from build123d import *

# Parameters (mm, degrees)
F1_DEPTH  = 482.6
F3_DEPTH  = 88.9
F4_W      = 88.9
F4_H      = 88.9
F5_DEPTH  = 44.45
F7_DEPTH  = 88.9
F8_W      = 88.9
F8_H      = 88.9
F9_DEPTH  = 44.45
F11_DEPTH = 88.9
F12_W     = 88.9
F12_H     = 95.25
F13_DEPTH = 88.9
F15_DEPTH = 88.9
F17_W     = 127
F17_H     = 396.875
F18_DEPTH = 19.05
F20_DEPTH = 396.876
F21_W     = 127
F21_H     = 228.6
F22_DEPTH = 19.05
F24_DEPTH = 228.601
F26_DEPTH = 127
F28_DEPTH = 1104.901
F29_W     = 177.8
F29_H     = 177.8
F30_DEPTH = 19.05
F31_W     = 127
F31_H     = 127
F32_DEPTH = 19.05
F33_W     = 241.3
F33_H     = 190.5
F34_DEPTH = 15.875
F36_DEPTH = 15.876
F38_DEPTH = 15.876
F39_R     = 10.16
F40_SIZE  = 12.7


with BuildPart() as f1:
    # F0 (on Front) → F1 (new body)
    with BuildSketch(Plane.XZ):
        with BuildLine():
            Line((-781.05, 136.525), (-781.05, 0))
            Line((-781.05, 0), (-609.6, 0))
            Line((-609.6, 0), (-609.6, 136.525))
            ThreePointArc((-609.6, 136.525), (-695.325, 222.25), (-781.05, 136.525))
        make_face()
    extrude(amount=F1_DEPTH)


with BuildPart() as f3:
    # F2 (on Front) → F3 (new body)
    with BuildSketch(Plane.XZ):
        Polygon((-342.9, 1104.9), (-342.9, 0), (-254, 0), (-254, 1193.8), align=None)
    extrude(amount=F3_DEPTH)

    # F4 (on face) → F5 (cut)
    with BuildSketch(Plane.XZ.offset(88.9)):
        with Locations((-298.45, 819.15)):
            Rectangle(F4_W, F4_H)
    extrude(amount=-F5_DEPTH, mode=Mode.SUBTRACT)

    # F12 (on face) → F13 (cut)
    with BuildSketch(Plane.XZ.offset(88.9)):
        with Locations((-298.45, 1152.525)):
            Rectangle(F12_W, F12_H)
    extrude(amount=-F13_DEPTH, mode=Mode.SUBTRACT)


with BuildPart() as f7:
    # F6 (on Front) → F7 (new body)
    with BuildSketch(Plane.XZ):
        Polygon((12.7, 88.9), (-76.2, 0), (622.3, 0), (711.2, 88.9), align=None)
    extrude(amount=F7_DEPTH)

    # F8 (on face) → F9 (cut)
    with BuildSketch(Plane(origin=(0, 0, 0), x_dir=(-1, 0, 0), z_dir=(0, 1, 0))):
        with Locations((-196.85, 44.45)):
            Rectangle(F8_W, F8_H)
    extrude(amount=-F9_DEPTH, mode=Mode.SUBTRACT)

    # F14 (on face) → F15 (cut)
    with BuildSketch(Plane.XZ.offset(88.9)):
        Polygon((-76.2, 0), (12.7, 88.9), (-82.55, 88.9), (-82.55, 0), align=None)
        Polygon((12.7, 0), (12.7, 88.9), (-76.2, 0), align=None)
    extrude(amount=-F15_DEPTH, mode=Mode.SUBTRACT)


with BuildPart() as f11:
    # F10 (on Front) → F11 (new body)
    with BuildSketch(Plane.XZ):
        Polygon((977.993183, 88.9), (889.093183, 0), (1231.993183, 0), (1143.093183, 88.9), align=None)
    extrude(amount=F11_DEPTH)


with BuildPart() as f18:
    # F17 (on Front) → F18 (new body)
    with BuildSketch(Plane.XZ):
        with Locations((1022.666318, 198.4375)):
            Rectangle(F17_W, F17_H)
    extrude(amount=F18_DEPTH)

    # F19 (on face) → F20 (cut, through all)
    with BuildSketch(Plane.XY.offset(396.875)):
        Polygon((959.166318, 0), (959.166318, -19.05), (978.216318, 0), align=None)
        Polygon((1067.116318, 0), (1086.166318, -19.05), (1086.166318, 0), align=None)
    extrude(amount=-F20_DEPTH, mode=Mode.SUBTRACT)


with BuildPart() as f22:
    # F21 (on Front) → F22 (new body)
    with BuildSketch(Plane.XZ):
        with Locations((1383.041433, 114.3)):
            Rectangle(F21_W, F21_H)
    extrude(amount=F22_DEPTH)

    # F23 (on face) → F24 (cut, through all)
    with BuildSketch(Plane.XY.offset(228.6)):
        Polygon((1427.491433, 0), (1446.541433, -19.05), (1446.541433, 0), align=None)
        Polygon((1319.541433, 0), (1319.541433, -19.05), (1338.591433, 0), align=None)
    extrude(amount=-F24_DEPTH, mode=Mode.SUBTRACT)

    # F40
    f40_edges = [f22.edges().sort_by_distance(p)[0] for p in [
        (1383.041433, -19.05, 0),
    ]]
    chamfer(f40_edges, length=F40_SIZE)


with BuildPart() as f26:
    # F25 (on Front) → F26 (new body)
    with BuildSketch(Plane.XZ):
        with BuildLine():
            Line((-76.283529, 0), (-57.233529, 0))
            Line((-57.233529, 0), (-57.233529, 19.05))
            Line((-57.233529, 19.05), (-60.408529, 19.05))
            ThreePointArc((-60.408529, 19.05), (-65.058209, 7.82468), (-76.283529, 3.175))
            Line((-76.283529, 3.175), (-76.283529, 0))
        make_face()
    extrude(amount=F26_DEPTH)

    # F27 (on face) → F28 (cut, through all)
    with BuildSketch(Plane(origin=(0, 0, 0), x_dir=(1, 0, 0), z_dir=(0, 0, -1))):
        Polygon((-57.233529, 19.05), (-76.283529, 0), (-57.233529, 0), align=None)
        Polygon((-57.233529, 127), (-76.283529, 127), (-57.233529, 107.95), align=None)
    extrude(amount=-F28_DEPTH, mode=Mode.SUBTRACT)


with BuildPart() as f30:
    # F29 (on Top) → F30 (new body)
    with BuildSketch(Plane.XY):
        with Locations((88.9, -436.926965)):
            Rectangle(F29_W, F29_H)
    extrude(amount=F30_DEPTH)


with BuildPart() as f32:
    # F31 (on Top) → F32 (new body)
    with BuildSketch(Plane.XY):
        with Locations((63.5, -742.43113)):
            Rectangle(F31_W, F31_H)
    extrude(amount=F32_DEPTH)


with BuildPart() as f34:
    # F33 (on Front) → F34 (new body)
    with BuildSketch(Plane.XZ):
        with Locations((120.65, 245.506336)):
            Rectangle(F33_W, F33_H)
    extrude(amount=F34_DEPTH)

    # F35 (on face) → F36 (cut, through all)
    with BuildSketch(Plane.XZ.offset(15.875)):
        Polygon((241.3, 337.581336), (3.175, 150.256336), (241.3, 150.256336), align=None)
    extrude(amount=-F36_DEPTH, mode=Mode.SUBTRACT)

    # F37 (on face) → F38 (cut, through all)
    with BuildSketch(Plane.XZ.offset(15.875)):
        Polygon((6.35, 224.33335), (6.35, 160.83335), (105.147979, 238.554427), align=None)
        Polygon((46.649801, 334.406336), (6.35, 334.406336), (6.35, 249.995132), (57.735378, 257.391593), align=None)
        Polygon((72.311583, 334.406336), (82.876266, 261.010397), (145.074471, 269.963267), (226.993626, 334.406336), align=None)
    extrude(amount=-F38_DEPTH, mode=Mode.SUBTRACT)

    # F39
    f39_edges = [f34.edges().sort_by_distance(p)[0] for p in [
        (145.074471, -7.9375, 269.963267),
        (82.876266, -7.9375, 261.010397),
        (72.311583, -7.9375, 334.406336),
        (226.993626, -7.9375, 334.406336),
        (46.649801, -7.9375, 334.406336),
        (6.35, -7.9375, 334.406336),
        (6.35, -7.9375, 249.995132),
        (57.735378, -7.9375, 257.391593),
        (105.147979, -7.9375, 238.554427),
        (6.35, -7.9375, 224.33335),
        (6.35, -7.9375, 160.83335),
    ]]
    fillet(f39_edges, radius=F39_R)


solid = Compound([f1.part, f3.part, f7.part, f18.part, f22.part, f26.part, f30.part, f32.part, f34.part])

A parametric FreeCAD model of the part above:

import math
import FreeCAD as App
import Part
import Sketcher

V = App.Vector
Q = App.Units.Quantity


def edges_at(feature, points):
    """Names of the edges that pass closest to the given points."""
    edges = feature.Shape.Edges
    near = lambda p: min(range(len(edges)), key=lambda i: edges[i].distToShape(Part.Vertex(*p))[0])
    return sorted({f"Edge{near(p) + 1}" for p in points})

doc = App.newDocument("Part")
body = doc.addObject("PartDesign::Body", "Body")

# Sketch on XZ plane
sketch1 = doc.addObject("Sketcher::SketchObject", "Sketch")
body.addObject(sketch1)
sketch1.AttachmentSupport = (doc.XZ_Plane, [""])
sketch1.MapMode = "FlatFace"
sketch1.addGeometry([
    Part.LineSegment(V(-781.05, 136.525, 0), V(-781.05, 0, 0)),
    Part.LineSegment(V(-781.05, 0, 0), V(-609.6, 0, 0)),
    Part.LineSegment(V(-609.6, 0, 0), V(-609.6, 136.525, 0)),
    Part.ArcOfCircle(Part.Circle(V(-695.325, 136.525, 0), V(0, 0, 1), 85.725), math.radians(0), math.radians(180)),
], False)
sketch1.addConstraint([
    Sketcher.Constraint("Coincident", 0, 2, 1, 1),
    Sketcher.Constraint("Coincident", 1, 2, 2, 1),
    Sketcher.Constraint("Tangent", 2, 2, 3, 1),
    Sketcher.Constraint("Tangent", 3, 2, 0, 1),
    Sketcher.Constraint("Vertical", 0),
    Sketcher.Constraint("Horizontal", 1),
    Sketcher.Constraint("Vertical", 2),
    Sketcher.Constraint("PointOnObject", 0, 2, -1),
    Sketcher.Constraint("DistanceX", 1, 2, -1, 1, Q("24 in")),
    Sketcher.Constraint("Radius", 3, Q("3.375 in")),
    Sketcher.Constraint("DistanceY", 0, 2, 0, 1, Q("5.375 in")),
])
pad1 = doc.addObject("PartDesign::Pad", "Pad")
body.addObject(pad1)
pad1.Profile = sketch1
pad1.Length = Q("19 in")
body2 = doc.addObject("PartDesign::Body", "Body001")

# Sketch on XZ plane
sketch2 = doc.addObject("Sketcher::SketchObject", "Sketch001")
body2.addObject(sketch2)
sketch2.AttachmentSupport = (doc.getObject("XZ_Plane001"), [""])
sketch2.MapMode = "FlatFace"
sketch2.addGeometry([
    Part.LineSegment(V(-342.9, 1104.9, 0), V(-342.9, 0, 0)),
    Part.LineSegment(V(-342.9, 0, 0), V(-254, 0, 0)),
    Part.LineSegment(V(-254, 0, 0), V(-254, 1193.8, 0)),
    Part.LineSegment(V(-254, 1193.8, 0), V(-342.9, 1104.9, 0)),
], False)
sketch2.addConstraint([
    Sketcher.Constraint("Coincident", 0, 2, 1, 1),
    Sketcher.Constraint("Coincident", 1, 2, 2, 1),
    Sketcher.Constraint("Coincident", 2, 2, 3, 1),
    Sketcher.Constraint("Coincident", 3, 2, 0, 1),
    Sketcher.Constraint("Vertical", 0),
    Sketcher.Constraint("Horizontal", 1),
    Sketcher.Constraint("Vertical", 2),
    Sketcher.Constraint("PointOnObject", 0, 2, -1),
    Sketcher.Constraint("DistanceY", 2, 1, 2, 2, Q("47 in")),
    Sketcher.Constraint("DistanceX", 1, 1, 1, 2, Q("3.5 in")),
    Sketcher.Constraint("DistanceY", 0, 2, 0, 1, Q("43.5 in")),
    Sketcher.Constraint("DistanceX", 1, 2, -1, 1, Q("10 in")),
])
pad2 = doc.addObject("PartDesign::Pad", "Pad001")
body2.addObject(pad2)
pad2.Profile = sketch2
pad2.Length = Q("3.5 in")

# Sketch on XZ plane
sketch3 = doc.addObject("Sketcher::SketchObject", "Sketch002")
body2.addObject(sketch3)
sketch3.AttachmentSupport = (doc.getObject("XZ_Plane001"), [""])
sketch3.MapMode = "FlatFace"
sketch3.AttachmentOffset = App.Placement(V(0, 0, 3.5 * 25.4), App.Rotation())
sketch3.addGeometry([
    Part.LineSegment(V(-342.9, 863.6, 0), V(-342.9, 774.7, 0)),
    Part.LineSegment(V(-342.9, 774.7, 0), V(-254, 774.7, 0)),
    Part.LineSegment(V(-254, 774.7, 0), V(-254, 863.6, 0)),
    Part.LineSegment(V(-254, 863.6, 0), V(-342.9, 863.6, 0)),
], False)
sketch3.addConstraint([
    Sketcher.Constraint("Coincident", 0, 2, 1, 1),
    Sketcher.Constraint("Coincident", 1, 2, 2, 1),
    Sketcher.Constraint("Coincident", 2, 2, 3, 1),
    Sketcher.Constraint("Coincident", 3, 2, 0, 1),
    Sketcher.Constraint("Vertical", 0),
    Sketcher.Constraint("Horizontal", 1),
    Sketcher.Constraint("Vertical", 2),
    Sketcher.Constraint("Horizontal", 3),
    Sketcher.Constraint("Equal", 3, 0),
    Sketcher.Constraint("DistanceX", 1, 1, 1, 2, Q("3.5 in")),
    Sketcher.Constraint("DistanceX", 1, 2, -1, 1, Q("10 in")),
    Sketcher.Constraint("DistanceY", -1, 1, 2, 2, Q("34 in")),
])
pocket1 = doc.addObject("PartDesign::Pocket", "Pocket")
body2.addObject(pocket1)
pocket1.Profile = sketch3
pocket1.Length = Q("1.75 in")

# Sketch on XZ plane
sketch4 = doc.addObject("Sketcher::SketchObject", "Sketch003")
body2.addObject(sketch4)
sketch4.AttachmentSupport = (doc.getObject("XZ_Plane001"), [""])
sketch4.MapMode = "FlatFace"
sketch4.AttachmentOffset = App.Placement(V(0, 0, 3.5 * 25.4), App.Rotation())
sketch4.addGeometry([
    Part.LineSegment(V(-342.9, 1200.15, 0), V(-342.9, 1104.9, 0)),
    Part.LineSegment(V(-342.9, 1104.9, 0), V(-254, 1104.9, 0)),
    Part.LineSegment(V(-254, 1104.9, 0), V(-254, 1200.15, 0)),
    Part.LineSegment(V(-254, 1200.15, 0), V(-342.9, 1200.15, 0)),
], False)
sketch4.addConstraint([
    Sketcher.Constraint("Coincident", 0, 2, 1, 1),
    Sketcher.Constraint("Coincident", 1, 2, 2, 1),
    Sketcher.Constraint("Coincident", 2, 2, 3, 1),
    Sketcher.Constraint("Coincident", 3, 2, 0, 1),
    Sketcher.Constraint("Vertical", 0),
    Sketcher.Constraint("Horizontal", 1),
    Sketcher.Constraint("Vertical", 2),
    Sketcher.Constraint("Horizontal", 3),
    Sketcher.Constraint("DistanceX", 1, 1, 1, 2, Q("3.5 in")),
    Sketcher.Constraint("DistanceX", 1, 2, -1, 1, Q("10 in")),
    Sketcher.Constraint("DistanceY", 0, 2, 0, 1, Q("3.75 in")),
    Sketcher.Constraint("DistanceY", -1, 1, 0, 2, Q("43.5 in")),
])
pocket2 = doc.addObject("PartDesign::Pocket", "Pocket001")
body2.addObject(pocket2)
pocket2.Profile = sketch4
pocket2.Length = Q("3.5 in")
body3 = doc.addObject("PartDesign::Body", "Body002")

# Sketch on XZ plane
sketch5 = doc.addObject("Sketcher::SketchObject", "Sketch004")
body3.addObject(sketch5)
sketch5.AttachmentSupport = (doc.getObject("XZ_Plane002"), [""])
sketch5.MapMode = "FlatFace"
sketch5.addGeometry([
    Part.LineSegment(V(12.7, 88.9, 0), V(-76.2, 0, 0)),
    Part.LineSegment(V(-76.2, 0, 0), V(622.3, 0, 0)),
    Part.LineSegment(V(622.3, 0, 0), V(711.2, 88.9, 0)),
    Part.LineSegment(V(711.2, 88.9, 0), V(12.7, 88.9, 0)),
], False)
sketch5.addConstraint([
    Sketcher.Constraint("Coincident", 0, 2, 1, 1),
    Sketcher.Constraint("Coincident", 1, 2, 2, 1),
    Sketcher.Constraint("Coincident", 2, 2, 3, 1),
    Sketcher.Constraint("Coincident", 3, 2, 0, 1),
    Sketcher.Constraint("Horizontal", 1),
    Sketcher.Constraint("Horizontal", 3),
    Sketcher.Constraint("PointOnObject", 0, 2, -1),
    Sketcher.Constraint("Parallel", 0, 2),
    Sketcher.Constraint("DistanceX", 1, 1, 1, 2, Q("27.5 in")),
    Sketcher.Constraint("DistanceX", 0, 2, -1, 1, Q("3 in")),
    Sketcher.Constraint("DistanceX", -1, 1, 2, 2, Q("28 in")),
    Sketcher.Constraint("Angle", 0, Q("-135 deg")),
])
pad3 = doc.addObject("PartDesign::Pad", "Pad002")
body3.addObject(pad3)
pad3.Profile = sketch5
pad3.Length = Q("3.5 in")

# Sketch on XZ plane
sketch6 = doc.addObject("Sketcher::SketchObject", "Sketch005")
body3.addObject(sketch6)
sketch6.AttachmentSupport = (doc.getObject("XZ_Plane002"), [""])
sketch6.MapMode = "FlatFace"
sketch6.addGeometry([
    Part.LineSegment(V(241.3, 88.9, 0), V(241.3, 0, 0)),
    Part.LineSegment(V(241.3, 0, 0), V(152.4, 0, 0)),
    Part.LineSegment(V(152.4, 0, 0), V(152.4, 88.9, 0)),
    Part.LineSegment(V(152.4, 88.9, 0), V(241.3, 88.9, 0)),
], False)
sketch6.addConstraint([
    Sketcher.Constraint("Coincident", 0, 2, 1, 1),
    Sketcher.Constraint("Coincident", 1, 2, 2, 1),
    Sketcher.Constraint("Coincident", 2, 2, 3, 1),
    Sketcher.Constraint("Coincident", 3, 2, 0, 1),
    Sketcher.Constraint("Vertical", 0),
    Sketcher.Constraint("Horizontal", 1),
    Sketcher.Constraint("Vertical", 2),
    Sketcher.Constraint("Horizontal", 3),
    Sketcher.Constraint("PointOnObject", 0, 2, -1),
    Sketcher.Constraint("Equal", 3, 0),
    Sketcher.Constraint("DistanceX", 1, 2, 1, 1, Q("3.5 in")),
    Sketcher.Constraint("DistanceX", -1, 1, 1, 2, Q("6 in")),
])
pocket3 = doc.addObject("PartDesign::Pocket", "Pocket002")
body3.addObject(pocket3)
pocket3.Profile = sketch6
pocket3.Length = Q("1.75 in")
pocket3.Reversed = True

# Sketch on XZ plane
sketch7 = doc.addObject("Sketcher::SketchObject", "Sketch006")
body3.addObject(sketch7)
sketch7.AttachmentSupport = (doc.getObject("XZ_Plane002"), [""])
sketch7.MapMode = "FlatFace"
sketch7.AttachmentOffset = App.Placement(V(0, 0, 3.5 * 25.4), App.Rotation())
sketch7.addGeometry([
    Part.LineSegment(V(12.7, 88.9, 0), V(-82.55, 88.9, 0)),
    Part.LineSegment(V(-82.55, 88.9, 0), V(-82.55, 0, 0)),
    Part.LineSegment(V(-82.55, 0, 0), V(12.7, 0, 0)),
    Part.LineSegment(V(12.7, 0, 0), V(12.7, 88.9, 0)),
], False)
sketch7.addConstraint([
    Sketcher.Constraint("Coincident", 0, 2, 1, 1),
    Sketcher.Constraint("Coincident", 1, 2, 2, 1),
    Sketcher.Constraint("Coincident", 2, 2, 3, 1),
    Sketcher.Constraint("Coincident", 3, 2, 0, 1),
    Sketcher.Constraint("Horizontal", 0),
    Sketcher.Constraint("Vertical", 1),
    Sketcher.Constraint("Horizontal", 2),
    Sketcher.Constraint("Vertical", 3),
    Sketcher.Constraint("PointOnObject", 1, 2, -1),
    Sketcher.Constraint("DistanceY", 1, 2, 1, 1, Q("3.5 in")),
    Sketcher.Constraint("DistanceX", 0, 2, 0, 1, Q("3.75 in")),
    Sketcher.Constraint("DistanceX", -1, 1, 2, 2, Q("0.5 in")),
])
pocket4 = doc.addObject("PartDesign::Pocket", "Pocket003")
body3.addObject(pocket4)
pocket4.Profile = sketch7
pocket4.Length = Q("3.5 in")
body4 = doc.addObject("PartDesign::Body", "Body003")

# Sketch on XZ plane
sketch8 = doc.addObject("Sketcher::SketchObject", "Sketch007")
body4.addObject(sketch8)
sketch8.AttachmentSupport = (doc.getObject("XZ_Plane003"), [""])
sketch8.MapMode = "FlatFace"
sketch8.addGeometry([
    Part.LineSegment(V(977.993183, 88.9, 0), V(889.093183, 0, 0)),
    Part.LineSegment(V(889.093183, 0, 0), V(1231.993183, 0, 0)),
    Part.LineSegment(V(1231.993183, 0, 0), V(1143.093183, 88.9, 0)),
    Part.LineSegment(V(1143.093183, 88.9, 0), V(977.993183, 88.9, 0)),
], False)
sketch8.addConstraint([
    Sketcher.Constraint("Coincident", 0, 2, 1, 1),
    Sketcher.Constraint("Coincident", 1, 2, 2, 1),
    Sketcher.Constraint("Coincident", 2, 2, 3, 1),
    Sketcher.Constraint("Coincident", 3, 2, 0, 1),
    Sketcher.Constraint("Horizontal", 1),
    Sketcher.Constraint("Horizontal", 3),
    Sketcher.Constraint("PointOnObject", 0, 2, -1),
    Sketcher.Constraint("Perpendicular", 0, 2),
    Sketcher.Constraint("Equal", 0, 2),
    Sketcher.Constraint("DistanceX", 1, 1, 1, 2, Q("13.5 in")),
    Sketcher.Constraint("DistanceX", 3, 2, 3, 1, Q("6.5 in")),
    Sketcher.Constraint("DistanceX", -1, 1, 0, 2, 889.093183),
])
pad4 = doc.addObject("PartDesign::Pad", "Pad003")
body4.addObject(pad4)
pad4.Profile = sketch8
pad4.Length = Q("3.5 in")
body5 = doc.addObject("PartDesign::Body", "Body004")

# Sketch on XZ plane
sketch9 = doc.addObject("Sketcher::SketchObject", "Sketch008")
body5.addObject(sketch9)
sketch9.AttachmentSupport = (doc.getObject("XZ_Plane004"), [""])
sketch9.MapMode = "FlatFace"
sketch9.addGeometry([
    Part.LineSegment(V(959.166318, 396.875, 0), V(959.166318, 0, 0)),
    Part.LineSegment(V(959.166318, 0, 0), V(1086.166318, 0, 0)),
    Part.LineSegment(V(1086.166318, 0, 0), V(1086.166318, 396.875, 0)),
    Part.LineSegment(V(1086.166318, 396.875, 0), V(959.166318, 396.875, 0)),
], False)
sketch9.addConstraint([
    Sketcher.Constraint("Coincident", 0, 2, 1, 1),
    Sketcher.Constraint("Coincident", 1, 2, 2, 1),
    Sketcher.Constraint("Coincident", 2, 2, 3, 1),
    Sketcher.Constraint("Coincident", 3, 2, 0, 1),
    Sketcher.Constraint("Vertical", 0),
    Sketcher.Constraint("Horizontal", 1),
    Sketcher.Constraint("Vertical", 2),
    Sketcher.Constraint("Horizontal", 3),
    Sketcher.Constraint("PointOnObject", 0, 2, -1),
    Sketcher.Constraint("DistanceX", 1, 1, 1, 2, Q("5 in")),
    Sketcher.Constraint("DistanceY", 0, 2, 0, 1, Q("15.625 in")),
    Sketcher.Constraint("DistanceX", -1, 1, 0, 2, 959.166318),
])
pad5 = doc.addObject("PartDesign::Pad", "Pad004")
body5.addObject(pad5)
pad5.Profile = sketch9
pad5.Length = Q("0.75 in")

# Sketch on XY plane
sketch10 = doc.addObject("Sketcher::SketchObject", "Sketch009")
body5.addObject(sketch10)
sketch10.AttachmentSupport = (doc.getObject("XY_Plane004"), [""])
sketch10.MapMode = "FlatFace"
sketch10.AttachmentOffset = App.Placement(V(0, 0, 15.625 * 25.4), App.Rotation())
sketch10.addGeometry([
    Part.LineSegment(V(959.166318, 0, 0), V(959.166318, -19.05, 0)),  # 0
    Part.LineSegment(V(959.166318, -19.05, 0), V(978.216318, 0, 0)),  # 1
    Part.LineSegment(V(978.216318, 0, 0), V(959.166318, 0, 0)),  # 2
    Part.LineSegment(V(1067.116318, 0, 0), V(1086.166318, -19.05, 0)),  # 3
    Part.LineSegment(V(1086.166318, -19.05, 0), V(1086.166318, 0, 0)),  # 4
    Part.LineSegment(V(1086.166318, 0, 0), V(1067.116318, 0, 0)),  # 5
], False)
sketch10.addConstraint([
    Sketcher.Constraint("Coincident", 0, 2, 1, 1),
    Sketcher.Constraint("Coincident", 1, 2, 2, 1),
    Sketcher.Constraint("Coincident", 2, 2, 0, 1),
    Sketcher.Constraint("Coincident", 3, 2, 4, 1),
    Sketcher.Constraint("Coincident", 4, 2, 5, 1),
    Sketcher.Constraint("Coincident", 5, 2, 3, 1),
    Sketcher.Constraint("Vertical", 0),
    Sketcher.Constraint("Horizontal", 2),
    Sketcher.Constraint("Vertical", 4),
    Sketcher.Constraint("Horizontal", 5),
    Sketcher.Constraint("PointOnObject", 1, 2, -1),
    Sketcher.Constraint("PointOnObject", 4, 2, -1),
    Sketcher.Constraint("Perpendicular", 1, 3),
    Sketcher.Constraint("Horizontal", 0, 2, 3, 2),
    Sketcher.Constraint("Equal", 2, 5),
    Sketcher.Constraint("DistanceX", 0, 2, 3, 2, Q("5 in")),
    Sketcher.Constraint("DistanceX", 2, 2, 2, 1, Q("0.75 in")),
    Sketcher.Constraint("DistanceX", -1, 1, 0, 2, 959.166318),
])
pocket5 = doc.addObject("PartDesign::Pocket", "Pocket004")
body5.addObject(pocket5)
pocket5.Profile = sketch10
pocket5.Type = "ThroughAll"
body6 = doc.addObject("PartDesign::Body", "Body005")

# Sketch on XZ plane
sketch11 = doc.addObject("Sketcher::SketchObject", "Sketch010")
body6.addObject(sketch11)
sketch11.AttachmentSupport = (doc.getObject("XZ_Plane005"), [""])
sketch11.MapMode = "FlatFace"
sketch11.addGeometry([
    Part.LineSegment(V(1319.541433, 228.6, 0), V(1319.541433, 0, 0)),
    Part.LineSegment(V(1319.541433, 0, 0), V(1446.541433, 0, 0)),
    Part.LineSegment(V(1446.541433, 0, 0), V(1446.541433, 228.6, 0)),
    Part.LineSegment(V(1446.541433, 228.6, 0), V(1319.541433, 228.6, 0)),
], False)
sketch11.addConstraint([
    Sketcher.Constraint("Coincident", 0, 2, 1, 1),
    Sketcher.Constraint("Coincident", 1, 2, 2, 1),
    Sketcher.Constraint("Coincident", 2, 2, 3, 1),
    Sketcher.Constraint("Coincident", 3, 2, 0, 1),
    Sketcher.Constraint("Vertical", 0),
    Sketcher.Constraint("Horizontal", 1),
    Sketcher.Constraint("Vertical", 2),
    Sketcher.Constraint("Horizontal", 3),
    Sketcher.Constraint("PointOnObject", 0, 2, -1),
    Sketcher.Constraint("DistanceX", 1, 1, 1, 2, Q("5 in")),
    Sketcher.Constraint("DistanceY", 0, 2, 0, 1, Q("9 in")),
    Sketcher.Constraint("DistanceX", -1, 1, 0, 2, 1319.541433),
])
pad6 = doc.addObject("PartDesign::Pad", "Pad005")
body6.addObject(pad6)
pad6.Profile = sketch11
pad6.Length = Q("0.75 in")

# Sketch on XY plane
sketch12 = doc.addObject("Sketcher::SketchObject", "Sketch011")
body6.addObject(sketch12)
sketch12.AttachmentSupport = (doc.getObject("XY_Plane005"), [""])
sketch12.MapMode = "FlatFace"
sketch12.AttachmentOffset = App.Placement(V(0, 0, 9 * 25.4), App.Rotation())
sketch12.addGeometry([
    Part.LineSegment(V(1427.491433, 0, 0), V(1446.541433, -19.05, 0)),  # 0
    Part.LineSegment(V(1446.541433, -19.05, 0), V(1446.541433, 0, 0)),  # 1
    Part.LineSegment(V(1446.541433, 0, 0), V(1427.491433, 0, 0)),  # 2
    Part.LineSegment(V(1319.541433, 0, 0), V(1319.541433, -19.05, 0)),  # 3
    Part.LineSegment(V(1319.541433, -19.05, 0), V(1338.591433, 0, 0)),  # 4
    Part.LineSegment(V(1338.591433, 0, 0), V(1319.541433, 0, 0)),  # 5
], False)
sketch12.addConstraint([
    Sketcher.Constraint("Coincident", 0, 2, 1, 1),
    Sketcher.Constraint("Coincident", 1, 2, 2, 1),
    Sketcher.Constraint("Coincident", 2, 2, 0, 1),
    Sketcher.Constraint("Coincident", 3, 2, 4, 1),
    Sketcher.Constraint("Coincident", 4, 2, 5, 1),
    Sketcher.Constraint("Coincident", 5, 2, 3, 1),
    Sketcher.Constraint("Vertical", 1),
    Sketcher.Constraint("Horizontal", 2),
    Sketcher.Constraint("Vertical", 3),
    Sketcher.Constraint("Horizontal", 5),
    Sketcher.Constraint("PointOnObject", 1, 2, -1),
    Sketcher.Constraint("PointOnObject", 4, 2, -1),
    Sketcher.Constraint("Perpendicular", 0, 4),
    Sketcher.Constraint("Horizontal", 0, 2, 3, 2),
    Sketcher.Constraint("Equal", 2, 5),
    Sketcher.Constraint("DistanceX", 3, 2, 0, 2, Q("5 in")),
    Sketcher.Constraint("DistanceX", 2, 2, 2, 1, Q("0.75 in")),
    Sketcher.Constraint("DistanceX", -1, 1, 0, 2, 1446.541433),
])
pocket6 = doc.addObject("PartDesign::Pocket", "Pocket005")
body6.addObject(pocket6)
pocket6.Profile = sketch12
pocket6.Type = "ThroughAll"
doc.recompute()

chamfer = doc.addObject("PartDesign::Chamfer", "Chamfer")
body6.addObject(chamfer)
chamfer.Base = (pocket6, edges_at(pocket6, [(1383.041, -19.05, 0)]))
chamfer.Size = Q("0.5 in")
body7 = doc.addObject("PartDesign::Body", "Body006")

# Sketch on XZ plane
sketch13 = doc.addObject("Sketcher::SketchObject", "Sketch012")
body7.addObject(sketch13)
sketch13.AttachmentSupport = (doc.getObject("XZ_Plane006"), [""])
sketch13.MapMode = "FlatFace"
sketch13.addGeometry([
    Part.LineSegment(V(-76.283529, 0, 0), V(-57.233529, 0, 0)),  # 0
    Part.LineSegment(V(-57.233529, 0, 0), V(-57.233529, 19.05, 0)),  # 1
    Part.LineSegment(V(-57.233529, 19.05, 0), V(-60.408529, 19.05, 0)),  # 2
    Part.ArcOfCircle(Part.Circle(V(-76.28353, 19.050001, 0), V(0, 0, 1), 15.875001), math.radians(-89.999998), math.radians(-0.000002)),  # 3
    Part.LineSegment(V(-76.283529, 3.175, 0), V(-76.283529, 0, 0)),  # 4
], False)
sketch13.addConstraint([
    Sketcher.Constraint("Coincident", 0, 2, 1, 1),
    Sketcher.Constraint("Coincident", 1, 2, 2, 1),
    Sketcher.Constraint("Coincident", 2, 2, 3, 2),
    Sketcher.Constraint("Coincident", 3, 1, 4, 1),
    Sketcher.Constraint("Coincident", 4, 2, 0, 1),
    Sketcher.Constraint("Horizontal", 0),
    Sketcher.Constraint("Vertical", 1),
    Sketcher.Constraint("Horizontal", 2),
    Sketcher.Constraint("Vertical", 4),
    Sketcher.Constraint("PointOnObject", 0, 2, -1),
    Sketcher.Constraint("Horizontal", 3, 3, 1, 2),
    Sketcher.Constraint("Equal", 0, 1),
    Sketcher.Constraint("Equal", 2, 4),
    Sketcher.Constraint("Radius", 3, Q("0.625 in")),
    Sketcher.Constraint("DistanceX", 0, 1, 0, 2, Q("0.75 in")),
    Sketcher.Constraint("DistanceX", 3, 3, -1, 1, 76.28353),
])
pad7 = doc.addObject("PartDesign::Pad", "Pad006")
body7.addObject(pad7)
pad7.Profile = sketch13
pad7.Length = Q("5 in")

# Sketch on XY plane
sketch14 = doc.addObject("Sketcher::SketchObject", "Sketch013")
body7.addObject(sketch14)
sketch14.AttachmentSupport = (doc.getObject("XY_Plane006"), [""])
sketch14.MapMode = "FlatFace"
sketch14.addGeometry([
    Part.LineSegment(V(-57.233529, -19.05, 0), V(-76.283529, 0, 0)),  # 0
    Part.LineSegment(V(-76.283529, 0, 0), V(-57.233529, 0, 0)),  # 1
    Part.LineSegment(V(-57.233529, 0, 0), V(-57.233529, -19.05, 0)),  # 2
    Part.LineSegment(V(-57.233529, -127, 0), V(-76.283529, -127, 0)),  # 3
    Part.LineSegment(V(-76.283529, -127, 0), V(-57.233529, -107.95, 0)),  # 4
    Part.LineSegment(V(-57.233529, -107.95, 0), V(-57.233529, -127, 0)),  # 5
], False)
sketch14.addConstraint([
    Sketcher.Constraint("Coincident", 0, 2, 1, 1),
    Sketcher.Constraint("Coincident", 1, 2, 2, 1),
    Sketcher.Constraint("Coincident", 2, 2, 0, 1),
    Sketcher.Constraint("Coincident", 3, 2, 4, 1),
    Sketcher.Constraint("Coincident", 4, 2, 5, 1),
    Sketcher.Constraint("Coincident", 5, 2, 3, 1),
    Sketcher.Constraint("Horizontal", 1),
    Sketcher.Constraint("Vertical", 2),
    Sketcher.Constraint("Horizontal", 3),
    Sketcher.Constraint("Vertical", 5),
    Sketcher.Constraint("PointOnObject", 0, 2, -1),
    Sketcher.Constraint("Perpendicular", 0, 4),
    Sketcher.Constraint("Vertical", 0, 2, 3, 2),
    Sketcher.Constraint("Vertical", 2, 2, 4, 2),
    Sketcher.Constraint("Equal", 3, 2),
    Sketcher.Constraint("DistanceY", 3, 2, -1, 1, Q("5 in")),
    Sketcher.Constraint("DistanceX", 1, 1, 1, 2, Q("0.75 in")),
    Sketcher.Constraint("DistanceX", 0, 2, -1, 1, 76.283529),
])
pocket7 = doc.addObject("PartDesign::Pocket", "Pocket006")
body7.addObject(pocket7)
pocket7.Profile = sketch14
pocket7.Type = "ThroughAll"
pocket7.Reversed = True
body8 = doc.addObject("PartDesign::Body", "Body007")

# Sketch on XY plane
sketch15 = doc.addObject("Sketcher::SketchObject", "Sketch014")
body8.addObject(sketch15)
sketch15.AttachmentSupport = (doc.getObject("XY_Plane007"), [""])
sketch15.MapMode = "FlatFace"
sketch15.addGeometry([
    Part.LineSegment(V(0, -348.026965, 0), V(0, -525.826965, 0)),
    Part.LineSegment(V(0, -525.826965, 0), V(177.8, -525.826965, 0)),
    Part.LineSegment(V(177.8, -525.826965, 0), V(177.8, -348.026965, 0)),
    Part.LineSegment(V(177.8, -348.026965, 0), V(0, -348.026965, 0)),
], False)
sketch15.addConstraint([
    Sketcher.Constraint("Coincident", 0, 2, 1, 1),
    Sketcher.Constraint("Coincident", 1, 2, 2, 1),
    Sketcher.Constraint("Coincident", 2, 2, 3, 1),
    Sketcher.Constraint("Coincident", 3, 2, 0, 1),
    Sketcher.Constraint("Vertical", 0),
    Sketcher.Constraint("Horizontal", 1),
    Sketcher.Constraint("Vertical", 2),
    Sketcher.Constraint("Horizontal", 3),
    Sketcher.Constraint("PointOnObject", 0, 2, -2),
    Sketcher.Constraint("Equal", 3, 0),
    Sketcher.Constraint("DistanceX", 1, 1, 1, 2, Q("7 in")),
    Sketcher.Constraint("DistanceY", 0, 2, -1, 1, 525.826965),
])
pad8 = doc.addObject("PartDesign::Pad", "Pad007")
body8.addObject(pad8)
pad8.Profile = sketch15
pad8.Length = Q("0.75 in")
body9 = doc.addObject("PartDesign::Body", "Body008")

# Sketch on XY plane
sketch16 = doc.addObject("Sketcher::SketchObject", "Sketch015")
body9.addObject(sketch16)
sketch16.AttachmentSupport = (doc.getObject("XY_Plane008"), [""])
sketch16.MapMode = "FlatFace"
sketch16.addGeometry([
    Part.LineSegment(V(0, -678.93113, 0), V(0, -805.93113, 0)),
    Part.LineSegment(V(0, -805.93113, 0), V(127, -805.93113, 0)),
    Part.LineSegment(V(127, -805.93113, 0), V(127, -678.93113, 0)),
    Part.LineSegment(V(127, -678.93113, 0), V(0, -678.93113, 0)),
], False)
sketch16.addConstraint([
    Sketcher.Constraint("Coincident", 0, 2, 1, 1),
    Sketcher.Constraint("Coincident", 1, 2, 2, 1),
    Sketcher.Constraint("Coincident", 2, 2, 3, 1),
    Sketcher.Constraint("Coincident", 3, 2, 0, 1),
    Sketcher.Constraint("Vertical", 0),
    Sketcher.Constraint("Horizontal", 1),
    Sketcher.Constraint("Vertical", 2),
    Sketcher.Constraint("Horizontal", 3),
    Sketcher.Constraint("PointOnObject", 0, 2, -2),
    Sketcher.Constraint("Equal", 3, 0),
    Sketcher.Constraint("DistanceX", 1, 1, 1, 2, Q("5 in")),
    Sketcher.Constraint("DistanceY", 0, 2, -1, 1, 805.93113),
])
pad9 = doc.addObject("PartDesign::Pad", "Pad008")
body9.addObject(pad9)
pad9.Profile = sketch16
pad9.Length = Q("0.75 in")
body10 = doc.addObject("PartDesign::Body", "Body009")

# Sketch on XZ plane
sketch17 = doc.addObject("Sketcher::SketchObject", "Sketch016")
body10.addObject(sketch17)
sketch17.AttachmentSupport = (doc.getObject("XZ_Plane009"), [""])
sketch17.MapMode = "FlatFace"
sketch17.addGeometry([
    Part.LineSegment(V(0, 340.756336, 0), V(0, 150.256336, 0)),
    Part.LineSegment(V(0, 150.256336, 0), V(241.3, 150.256336, 0)),
    Part.LineSegment(V(241.3, 150.256336, 0), V(241.3, 340.756336, 0)),
    Part.LineSegment(V(241.3, 340.756336, 0), V(0, 340.756336, 0)),
], False)
sketch17.addConstraint([
    Sketcher.Constraint("Coincident", 0, 2, 1, 1),
    Sketcher.Constraint("Coincident", 1, 2, 2, 1),
    Sketcher.Constraint("Coincident", 2, 2, 3, 1),
    Sketcher.Constraint("Coincident", 3, 2, 0, 1),
    Sketcher.Constraint("Vertical", 0),
    Sketcher.Constraint("Horizontal", 1),
    Sketcher.Constraint("Vertical", 2),
    Sketcher.Constraint("Horizontal", 3),
    Sketcher.Constraint("PointOnObject", 0, 2, -2),
    Sketcher.Constraint("DistanceX", 1, 1, 1, 2, Q("9.5 in")),
    Sketcher.Constraint("DistanceY", 0, 2, 0, 1, Q("7.5 in")),
    Sketcher.Constraint("DistanceY", -1, 1, 0, 2, 150.256336),
])
pad10 = doc.addObject("PartDesign::Pad", "Pad009")
body10.addObject(pad10)
pad10.Profile = sketch17
pad10.Length = Q("0.625 in")

# Sketch on XZ plane
sketch18 = doc.addObject("Sketcher::SketchObject", "Sketch017")
body10.addObject(sketch18)
sketch18.AttachmentSupport = (doc.getObject("XZ_Plane009"), [""])
sketch18.MapMode = "FlatFace"
sketch18.AttachmentOffset = App.Placement(V(0, 0, 0.625 * 25.4), App.Rotation())
sketch18.addGeometry([
    Part.LineSegment(V(241.3, 337.581336, 0), V(3.175, 150.256336, 0)),
    Part.LineSegment(V(3.175, 150.256336, 0), V(241.3, 150.256336, 0)),
    Part.LineSegment(V(241.3, 150.256336, 0), V(241.3, 337.581336, 0)),
], False)
sketch18.addConstraint([
    Sketcher.Constraint("Coincident", 0, 2, 1, 1),
    Sketcher.Constraint("Coincident", 1, 2, 2, 1),
    Sketcher.Constraint("Coincident", 2, 2, 0, 1),
    Sketcher.Constraint("Horizontal", 1),
    Sketcher.Constraint("Vertical", 2),
    Sketcher.Constraint("DistanceX", -1, 1, 1, 2, Q("9.5 in")),
    Sketcher.Constraint("DistanceX", 1, 1, 1, 2, Q("9.375 in")),
    Sketcher.Constraint("DistanceY", 2, 1, 2, 2, Q("7.375 in")),
    Sketcher.Constraint("DistanceY", -1, 1, 0, 2, 150.256336),
])
pocket8 = doc.addObject("PartDesign::Pocket", "Pocket007")
body10.addObject(pocket8)
pocket8.Profile = sketch18
pocket8.Type = "ThroughAll"

# Sketch on XZ plane
sketch19 = doc.addObject("Sketcher::SketchObject", "Sketch018")
body10.addObject(sketch19)
sketch19.AttachmentSupport = (doc.getObject("XZ_Plane009"), [""])
sketch19.MapMode = "FlatFace"
sketch19.AttachmentOffset = App.Placement(V(0, 0, 0.625 * 25.4), App.Rotation())
sketch19.addGeometry([
    Part.LineSegment(V(6.35, 224.33335, 0), V(6.35, 160.83335, 0)),  # 0
    Part.LineSegment(V(6.35, 160.83335, 0), V(105.147979, 238.554427, 0)),  # 1
    Part.LineSegment(V(105.147979, 238.554427, 0), V(6.35, 224.33335, 0)),  # 2
    Part.LineSegment(V(46.649801, 334.406336, 0), V(6.35, 334.406336, 0)),  # 3
    Part.LineSegment(V(6.35, 334.406336, 0), V(6.35, 249.995132, 0)),  # 4
    Part.LineSegment(V(6.35, 249.995132, 0), V(57.735378, 257.391593, 0)),  # 5
    Part.LineSegment(V(57.735378, 257.391593, 0), V(46.649801, 334.406336, 0)),  # 6
    Part.LineSegment(V(72.311583, 334.406336, 0), V(82.876266, 261.010397, 0)),  # 7
    Part.LineSegment(V(82.876266, 261.010397, 0), V(145.074471, 269.963267, 0)),  # 8
    Part.LineSegment(V(145.074471, 269.963267, 0), V(226.993626, 334.406336, 0)),  # 9
    Part.LineSegment(V(226.993626, 334.406336, 0), V(72.311583, 334.406336, 0)),  # 10
], False)
sketch19.addConstraint([
    Sketcher.Constraint("Coincident", 0, 2, 1, 1),
    Sketcher.Constraint("Coincident", 1, 2, 2, 1),
    Sketcher.Constraint("Coincident", 2, 2, 0, 1),
    Sketcher.Constraint("Coincident", 3, 2, 4, 1),
    Sketcher.Constraint("Coincident", 4, 2, 5, 1),
    Sketcher.Constraint("Coincident", 5, 2, 6, 1),
    Sketcher.Constraint("Coincident", 6, 2, 3, 1),
    Sketcher.Constraint("Coincident", 7, 2, 8, 1),
    Sketcher.Constraint("Coincident", 8, 2, 9, 1),
    Sketcher.Constraint("Coincident", 9, 2, 10, 1),
    Sketcher.Constraint("Coincident", 10, 2, 7, 1),
    Sketcher.Constraint("Vertical", 0),
    Sketcher.Constraint("Horizontal", 3),
    Sketcher.Constraint("Vertical", 4),
    Sketcher.Constraint("Horizontal", 10),
    Sketcher.Constraint("Parallel", 2, 5),
    Sketcher.Constraint("Perpendicular", 5, 6),
    Sketcher.Constraint("Parallel", 6, 7),
    Sketcher.Constraint("Perpendicular", 7, 8),
    Sketcher.Constraint("Parallel", 1, 9),
    Sketcher.Constraint("Horizontal", 6, 2, 9, 2),
    Sketcher.Constraint("Vertical", 2, 2, 3, 2),
    Sketcher.Constraint("DistanceY", 0, 2, 0, 1, Q("2.5 in")),
    Sketcher.Constraint("DistanceX", -1, 1, 0, 2, Q("0.25 in")),
    Sketcher.Constraint("DistanceY", -1, 1, 7, 2, Q("10.2759999 in")),
    Sketcher.Constraint("DistanceX", 3, 2, 3, 1, 40.299801),
    Sketcher.Constraint("DistanceX", 5, 2, 1, 2, 47.412601),
    Sketcher.Constraint("Distance", 1, 125.704441),
    Sketcher.Constraint("Distance", 2, 99.81623),
    Sketcher.Constraint("Distance", 9, 104.228869),
    Sketcher.Constraint("DistanceX", 10, 2, 10, 1, 154.682043),
    Sketcher.Constraint("DistanceY", -1, 1, 0, 2, 160.83335),
    Sketcher.Constraint("DistanceX", -1, 1, 8, 2, 145.074471),
])
pocket9 = doc.addObject("PartDesign::Pocket", "Pocket008")
body10.addObject(pocket9)
pocket9.Profile = sketch19
pocket9.Type = "ThroughAll"
doc.recompute()

fillet = doc.addObject("PartDesign::Fillet", "Fillet")
body10.addObject(fillet)
fillet.Base = (pocket9, edges_at(pocket9, [
    (145.074, -7.938, 269.963),
    (82.876, -7.938, 261.01),
    (72.312, -7.938, 334.406),
    (226.994, -7.938, 334.406),
    (46.65, -7.938, 334.406),
    (6.35, -7.938, 334.406),
    (6.35, -7.938, 249.995),
    (57.735, -7.938, 257.392),
    (105.148, -7.938, 238.554),
    (6.35, -7.938, 224.333),
    (6.35, -7.938, 160.833),
]))
fillet.Radius = Q("0.4 in")
body4.Visibility = False

doc.recompute()
